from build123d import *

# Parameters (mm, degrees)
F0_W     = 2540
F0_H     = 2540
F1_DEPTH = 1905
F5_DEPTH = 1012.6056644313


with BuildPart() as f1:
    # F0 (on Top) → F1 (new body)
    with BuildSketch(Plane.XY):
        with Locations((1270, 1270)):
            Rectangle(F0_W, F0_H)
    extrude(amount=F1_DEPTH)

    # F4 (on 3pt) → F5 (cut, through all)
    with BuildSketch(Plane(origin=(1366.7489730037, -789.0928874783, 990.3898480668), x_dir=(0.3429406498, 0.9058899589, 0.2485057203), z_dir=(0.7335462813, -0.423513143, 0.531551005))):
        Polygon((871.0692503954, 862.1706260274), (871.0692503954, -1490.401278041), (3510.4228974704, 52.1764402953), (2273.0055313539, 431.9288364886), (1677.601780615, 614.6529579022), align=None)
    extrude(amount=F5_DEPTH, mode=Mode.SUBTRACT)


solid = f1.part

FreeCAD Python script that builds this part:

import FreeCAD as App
import Part
import Sketcher
from FreeCAD import Vector
Q = App.Units.Quantity

doc = App.newDocument("Part")
params = doc.addObject("Spreadsheet::Sheet", "Params")
for row, (alias, value) in enumerate([
    ("sketch1_width", "100 in"),
    ("pad1_length", "75 in"),
], start=1):
    params.set(f"A{row}", alias)
    params.set(f"B{row}", "=" + value)
    params.setAlias(f"B{row}", alias)

body = doc.addObject("PartDesign::Body", "Body")

# Sketch on XY plane
sketch1 = doc.addObject("Sketcher::SketchObject", "Sketch")
body.addObject(sketch1)
sketch1.AttachmentSupport = (doc.XY_Plane, [""])
sketch1.MapMode = "FlatFace"
sketch1.addGeometry(Part.LineSegment(Vector(0, 2540, 0), Vector(0, 0, 0)), False)
sketch1.addGeometry(Part.LineSegment(Vector(0, 0, 0), Vector(2540, 0, 0)), False)
sketch1.addGeometry(Part.LineSegment(Vector(2540, 0, 0), Vector(2540, 2540, 0)), False)
sketch1.addGeometry(Part.LineSegment(Vector(2540, 2540, 0), Vector(0, 2540, 0)), False)
sketch1.addConstraint(Sketcher.Constraint("Coincident", 0, 2, 1, 1))
sketch1.addConstraint(Sketcher.Constraint("Coincident", 1, 2, 2, 1))
sketch1.addConstraint(Sketcher.Constraint("Coincident", 2, 2, 3, 1))
sketch1.addConstraint(Sketcher.Constraint("Coincident", 3, 2, 0, 1))
sketch1.addConstraint(Sketcher.Constraint("Vertical", 0))
sketch1.addConstraint(Sketcher.Constraint("Horizontal", 1))
sketch1.addConstraint(Sketcher.Constraint("Vertical", 2))
sketch1.addConstraint(Sketcher.Constraint("Horizontal", 3))
sketch1.addConstraint(Sketcher.Constraint("Coincident", 0, 2, -1, 1))
sketch1.addConstraint(Sketcher.Constraint("Equal", 3, 0))
sketch1.addConstraint(Sketcher.Constraint("DistanceX", 1, 1, 1, 2, Q("100 in")))
sketch1.setExpression("Constraints[10]", "Params.sketch1_width")
pad1 = doc.addObject("PartDesign::Pad", "Pad")
body.addObject(pad1)
pad1.Profile = sketch1
pad1.setExpression("Length", "Params.pad1_length")

# Sketch on an angled plane
sketch2 = doc.addObject("Sketcher::SketchObject", "Sketch001")
body.addObject(sketch2)
sketch2.Placement = App.Placement(Vector(1366.748973, -789.092887, 990.389848), App.Rotation(Vector(0.34294065, 0.905889959, 0.24850572), Vector(-0.586772157, 0, 0.809752083), Vector(0.733546281, -0.423513143, 0.531551005), "ZXY"))
sketch2.addGeometry(Part.LineSegment(Vector(871, 862, 0), Vector(871, -1490, 0)), False)
sketch2.addGeometry(Part.LineSegment(Vector(871, -1490, 0), Vector(3510, 52, 0)), False)
sketch2.addGeometry(Part.LineSegment(Vector(3510, 52, 0), Vector(871, 862, 0)), False)
sketch2.addConstraint(Sketcher.Constraint("Coincident", 0, 2, 1, 1))
sketch2.addConstraint(Sketcher.Constraint("Coincident", 1, 2, 2, 1))
sketch2.addConstraint(Sketcher.Constraint("Coincident", 2, 2, 0, 1))
sketch2.addConstraint(Sketcher.Constraint("Vertical", 0))
sketch2.addConstraint(Sketcher.Constraint("Distance", 2, Q("2760.84738 mm")))
sketch2.addConstraint(Sketcher.Constraint("DistanceY", 0, 2, 0, 1, Q("2352.571903 mm")))
sketch2.addConstraint(Sketcher.Constraint("DistanceX", -1, 1, 0, 2, Q("871.06925 mm")))
sketch2.addConstraint(Sketcher.Constraint("DistanceY", -1, 1, 1, 2, Q("52.17644 mm")))
sketch2.addConstraint(Sketcher.Constraint("Distance", 1, Q("3057.079275 mm")))
pocket1 = doc.addObject("PartDesign::Pocket", "Pocket")
body.addObject(pocket1)
pocket1.Profile = sketch2
pocket1.Type = "ThroughAll"
pocket1.Reversed = True

doc.recompute()
